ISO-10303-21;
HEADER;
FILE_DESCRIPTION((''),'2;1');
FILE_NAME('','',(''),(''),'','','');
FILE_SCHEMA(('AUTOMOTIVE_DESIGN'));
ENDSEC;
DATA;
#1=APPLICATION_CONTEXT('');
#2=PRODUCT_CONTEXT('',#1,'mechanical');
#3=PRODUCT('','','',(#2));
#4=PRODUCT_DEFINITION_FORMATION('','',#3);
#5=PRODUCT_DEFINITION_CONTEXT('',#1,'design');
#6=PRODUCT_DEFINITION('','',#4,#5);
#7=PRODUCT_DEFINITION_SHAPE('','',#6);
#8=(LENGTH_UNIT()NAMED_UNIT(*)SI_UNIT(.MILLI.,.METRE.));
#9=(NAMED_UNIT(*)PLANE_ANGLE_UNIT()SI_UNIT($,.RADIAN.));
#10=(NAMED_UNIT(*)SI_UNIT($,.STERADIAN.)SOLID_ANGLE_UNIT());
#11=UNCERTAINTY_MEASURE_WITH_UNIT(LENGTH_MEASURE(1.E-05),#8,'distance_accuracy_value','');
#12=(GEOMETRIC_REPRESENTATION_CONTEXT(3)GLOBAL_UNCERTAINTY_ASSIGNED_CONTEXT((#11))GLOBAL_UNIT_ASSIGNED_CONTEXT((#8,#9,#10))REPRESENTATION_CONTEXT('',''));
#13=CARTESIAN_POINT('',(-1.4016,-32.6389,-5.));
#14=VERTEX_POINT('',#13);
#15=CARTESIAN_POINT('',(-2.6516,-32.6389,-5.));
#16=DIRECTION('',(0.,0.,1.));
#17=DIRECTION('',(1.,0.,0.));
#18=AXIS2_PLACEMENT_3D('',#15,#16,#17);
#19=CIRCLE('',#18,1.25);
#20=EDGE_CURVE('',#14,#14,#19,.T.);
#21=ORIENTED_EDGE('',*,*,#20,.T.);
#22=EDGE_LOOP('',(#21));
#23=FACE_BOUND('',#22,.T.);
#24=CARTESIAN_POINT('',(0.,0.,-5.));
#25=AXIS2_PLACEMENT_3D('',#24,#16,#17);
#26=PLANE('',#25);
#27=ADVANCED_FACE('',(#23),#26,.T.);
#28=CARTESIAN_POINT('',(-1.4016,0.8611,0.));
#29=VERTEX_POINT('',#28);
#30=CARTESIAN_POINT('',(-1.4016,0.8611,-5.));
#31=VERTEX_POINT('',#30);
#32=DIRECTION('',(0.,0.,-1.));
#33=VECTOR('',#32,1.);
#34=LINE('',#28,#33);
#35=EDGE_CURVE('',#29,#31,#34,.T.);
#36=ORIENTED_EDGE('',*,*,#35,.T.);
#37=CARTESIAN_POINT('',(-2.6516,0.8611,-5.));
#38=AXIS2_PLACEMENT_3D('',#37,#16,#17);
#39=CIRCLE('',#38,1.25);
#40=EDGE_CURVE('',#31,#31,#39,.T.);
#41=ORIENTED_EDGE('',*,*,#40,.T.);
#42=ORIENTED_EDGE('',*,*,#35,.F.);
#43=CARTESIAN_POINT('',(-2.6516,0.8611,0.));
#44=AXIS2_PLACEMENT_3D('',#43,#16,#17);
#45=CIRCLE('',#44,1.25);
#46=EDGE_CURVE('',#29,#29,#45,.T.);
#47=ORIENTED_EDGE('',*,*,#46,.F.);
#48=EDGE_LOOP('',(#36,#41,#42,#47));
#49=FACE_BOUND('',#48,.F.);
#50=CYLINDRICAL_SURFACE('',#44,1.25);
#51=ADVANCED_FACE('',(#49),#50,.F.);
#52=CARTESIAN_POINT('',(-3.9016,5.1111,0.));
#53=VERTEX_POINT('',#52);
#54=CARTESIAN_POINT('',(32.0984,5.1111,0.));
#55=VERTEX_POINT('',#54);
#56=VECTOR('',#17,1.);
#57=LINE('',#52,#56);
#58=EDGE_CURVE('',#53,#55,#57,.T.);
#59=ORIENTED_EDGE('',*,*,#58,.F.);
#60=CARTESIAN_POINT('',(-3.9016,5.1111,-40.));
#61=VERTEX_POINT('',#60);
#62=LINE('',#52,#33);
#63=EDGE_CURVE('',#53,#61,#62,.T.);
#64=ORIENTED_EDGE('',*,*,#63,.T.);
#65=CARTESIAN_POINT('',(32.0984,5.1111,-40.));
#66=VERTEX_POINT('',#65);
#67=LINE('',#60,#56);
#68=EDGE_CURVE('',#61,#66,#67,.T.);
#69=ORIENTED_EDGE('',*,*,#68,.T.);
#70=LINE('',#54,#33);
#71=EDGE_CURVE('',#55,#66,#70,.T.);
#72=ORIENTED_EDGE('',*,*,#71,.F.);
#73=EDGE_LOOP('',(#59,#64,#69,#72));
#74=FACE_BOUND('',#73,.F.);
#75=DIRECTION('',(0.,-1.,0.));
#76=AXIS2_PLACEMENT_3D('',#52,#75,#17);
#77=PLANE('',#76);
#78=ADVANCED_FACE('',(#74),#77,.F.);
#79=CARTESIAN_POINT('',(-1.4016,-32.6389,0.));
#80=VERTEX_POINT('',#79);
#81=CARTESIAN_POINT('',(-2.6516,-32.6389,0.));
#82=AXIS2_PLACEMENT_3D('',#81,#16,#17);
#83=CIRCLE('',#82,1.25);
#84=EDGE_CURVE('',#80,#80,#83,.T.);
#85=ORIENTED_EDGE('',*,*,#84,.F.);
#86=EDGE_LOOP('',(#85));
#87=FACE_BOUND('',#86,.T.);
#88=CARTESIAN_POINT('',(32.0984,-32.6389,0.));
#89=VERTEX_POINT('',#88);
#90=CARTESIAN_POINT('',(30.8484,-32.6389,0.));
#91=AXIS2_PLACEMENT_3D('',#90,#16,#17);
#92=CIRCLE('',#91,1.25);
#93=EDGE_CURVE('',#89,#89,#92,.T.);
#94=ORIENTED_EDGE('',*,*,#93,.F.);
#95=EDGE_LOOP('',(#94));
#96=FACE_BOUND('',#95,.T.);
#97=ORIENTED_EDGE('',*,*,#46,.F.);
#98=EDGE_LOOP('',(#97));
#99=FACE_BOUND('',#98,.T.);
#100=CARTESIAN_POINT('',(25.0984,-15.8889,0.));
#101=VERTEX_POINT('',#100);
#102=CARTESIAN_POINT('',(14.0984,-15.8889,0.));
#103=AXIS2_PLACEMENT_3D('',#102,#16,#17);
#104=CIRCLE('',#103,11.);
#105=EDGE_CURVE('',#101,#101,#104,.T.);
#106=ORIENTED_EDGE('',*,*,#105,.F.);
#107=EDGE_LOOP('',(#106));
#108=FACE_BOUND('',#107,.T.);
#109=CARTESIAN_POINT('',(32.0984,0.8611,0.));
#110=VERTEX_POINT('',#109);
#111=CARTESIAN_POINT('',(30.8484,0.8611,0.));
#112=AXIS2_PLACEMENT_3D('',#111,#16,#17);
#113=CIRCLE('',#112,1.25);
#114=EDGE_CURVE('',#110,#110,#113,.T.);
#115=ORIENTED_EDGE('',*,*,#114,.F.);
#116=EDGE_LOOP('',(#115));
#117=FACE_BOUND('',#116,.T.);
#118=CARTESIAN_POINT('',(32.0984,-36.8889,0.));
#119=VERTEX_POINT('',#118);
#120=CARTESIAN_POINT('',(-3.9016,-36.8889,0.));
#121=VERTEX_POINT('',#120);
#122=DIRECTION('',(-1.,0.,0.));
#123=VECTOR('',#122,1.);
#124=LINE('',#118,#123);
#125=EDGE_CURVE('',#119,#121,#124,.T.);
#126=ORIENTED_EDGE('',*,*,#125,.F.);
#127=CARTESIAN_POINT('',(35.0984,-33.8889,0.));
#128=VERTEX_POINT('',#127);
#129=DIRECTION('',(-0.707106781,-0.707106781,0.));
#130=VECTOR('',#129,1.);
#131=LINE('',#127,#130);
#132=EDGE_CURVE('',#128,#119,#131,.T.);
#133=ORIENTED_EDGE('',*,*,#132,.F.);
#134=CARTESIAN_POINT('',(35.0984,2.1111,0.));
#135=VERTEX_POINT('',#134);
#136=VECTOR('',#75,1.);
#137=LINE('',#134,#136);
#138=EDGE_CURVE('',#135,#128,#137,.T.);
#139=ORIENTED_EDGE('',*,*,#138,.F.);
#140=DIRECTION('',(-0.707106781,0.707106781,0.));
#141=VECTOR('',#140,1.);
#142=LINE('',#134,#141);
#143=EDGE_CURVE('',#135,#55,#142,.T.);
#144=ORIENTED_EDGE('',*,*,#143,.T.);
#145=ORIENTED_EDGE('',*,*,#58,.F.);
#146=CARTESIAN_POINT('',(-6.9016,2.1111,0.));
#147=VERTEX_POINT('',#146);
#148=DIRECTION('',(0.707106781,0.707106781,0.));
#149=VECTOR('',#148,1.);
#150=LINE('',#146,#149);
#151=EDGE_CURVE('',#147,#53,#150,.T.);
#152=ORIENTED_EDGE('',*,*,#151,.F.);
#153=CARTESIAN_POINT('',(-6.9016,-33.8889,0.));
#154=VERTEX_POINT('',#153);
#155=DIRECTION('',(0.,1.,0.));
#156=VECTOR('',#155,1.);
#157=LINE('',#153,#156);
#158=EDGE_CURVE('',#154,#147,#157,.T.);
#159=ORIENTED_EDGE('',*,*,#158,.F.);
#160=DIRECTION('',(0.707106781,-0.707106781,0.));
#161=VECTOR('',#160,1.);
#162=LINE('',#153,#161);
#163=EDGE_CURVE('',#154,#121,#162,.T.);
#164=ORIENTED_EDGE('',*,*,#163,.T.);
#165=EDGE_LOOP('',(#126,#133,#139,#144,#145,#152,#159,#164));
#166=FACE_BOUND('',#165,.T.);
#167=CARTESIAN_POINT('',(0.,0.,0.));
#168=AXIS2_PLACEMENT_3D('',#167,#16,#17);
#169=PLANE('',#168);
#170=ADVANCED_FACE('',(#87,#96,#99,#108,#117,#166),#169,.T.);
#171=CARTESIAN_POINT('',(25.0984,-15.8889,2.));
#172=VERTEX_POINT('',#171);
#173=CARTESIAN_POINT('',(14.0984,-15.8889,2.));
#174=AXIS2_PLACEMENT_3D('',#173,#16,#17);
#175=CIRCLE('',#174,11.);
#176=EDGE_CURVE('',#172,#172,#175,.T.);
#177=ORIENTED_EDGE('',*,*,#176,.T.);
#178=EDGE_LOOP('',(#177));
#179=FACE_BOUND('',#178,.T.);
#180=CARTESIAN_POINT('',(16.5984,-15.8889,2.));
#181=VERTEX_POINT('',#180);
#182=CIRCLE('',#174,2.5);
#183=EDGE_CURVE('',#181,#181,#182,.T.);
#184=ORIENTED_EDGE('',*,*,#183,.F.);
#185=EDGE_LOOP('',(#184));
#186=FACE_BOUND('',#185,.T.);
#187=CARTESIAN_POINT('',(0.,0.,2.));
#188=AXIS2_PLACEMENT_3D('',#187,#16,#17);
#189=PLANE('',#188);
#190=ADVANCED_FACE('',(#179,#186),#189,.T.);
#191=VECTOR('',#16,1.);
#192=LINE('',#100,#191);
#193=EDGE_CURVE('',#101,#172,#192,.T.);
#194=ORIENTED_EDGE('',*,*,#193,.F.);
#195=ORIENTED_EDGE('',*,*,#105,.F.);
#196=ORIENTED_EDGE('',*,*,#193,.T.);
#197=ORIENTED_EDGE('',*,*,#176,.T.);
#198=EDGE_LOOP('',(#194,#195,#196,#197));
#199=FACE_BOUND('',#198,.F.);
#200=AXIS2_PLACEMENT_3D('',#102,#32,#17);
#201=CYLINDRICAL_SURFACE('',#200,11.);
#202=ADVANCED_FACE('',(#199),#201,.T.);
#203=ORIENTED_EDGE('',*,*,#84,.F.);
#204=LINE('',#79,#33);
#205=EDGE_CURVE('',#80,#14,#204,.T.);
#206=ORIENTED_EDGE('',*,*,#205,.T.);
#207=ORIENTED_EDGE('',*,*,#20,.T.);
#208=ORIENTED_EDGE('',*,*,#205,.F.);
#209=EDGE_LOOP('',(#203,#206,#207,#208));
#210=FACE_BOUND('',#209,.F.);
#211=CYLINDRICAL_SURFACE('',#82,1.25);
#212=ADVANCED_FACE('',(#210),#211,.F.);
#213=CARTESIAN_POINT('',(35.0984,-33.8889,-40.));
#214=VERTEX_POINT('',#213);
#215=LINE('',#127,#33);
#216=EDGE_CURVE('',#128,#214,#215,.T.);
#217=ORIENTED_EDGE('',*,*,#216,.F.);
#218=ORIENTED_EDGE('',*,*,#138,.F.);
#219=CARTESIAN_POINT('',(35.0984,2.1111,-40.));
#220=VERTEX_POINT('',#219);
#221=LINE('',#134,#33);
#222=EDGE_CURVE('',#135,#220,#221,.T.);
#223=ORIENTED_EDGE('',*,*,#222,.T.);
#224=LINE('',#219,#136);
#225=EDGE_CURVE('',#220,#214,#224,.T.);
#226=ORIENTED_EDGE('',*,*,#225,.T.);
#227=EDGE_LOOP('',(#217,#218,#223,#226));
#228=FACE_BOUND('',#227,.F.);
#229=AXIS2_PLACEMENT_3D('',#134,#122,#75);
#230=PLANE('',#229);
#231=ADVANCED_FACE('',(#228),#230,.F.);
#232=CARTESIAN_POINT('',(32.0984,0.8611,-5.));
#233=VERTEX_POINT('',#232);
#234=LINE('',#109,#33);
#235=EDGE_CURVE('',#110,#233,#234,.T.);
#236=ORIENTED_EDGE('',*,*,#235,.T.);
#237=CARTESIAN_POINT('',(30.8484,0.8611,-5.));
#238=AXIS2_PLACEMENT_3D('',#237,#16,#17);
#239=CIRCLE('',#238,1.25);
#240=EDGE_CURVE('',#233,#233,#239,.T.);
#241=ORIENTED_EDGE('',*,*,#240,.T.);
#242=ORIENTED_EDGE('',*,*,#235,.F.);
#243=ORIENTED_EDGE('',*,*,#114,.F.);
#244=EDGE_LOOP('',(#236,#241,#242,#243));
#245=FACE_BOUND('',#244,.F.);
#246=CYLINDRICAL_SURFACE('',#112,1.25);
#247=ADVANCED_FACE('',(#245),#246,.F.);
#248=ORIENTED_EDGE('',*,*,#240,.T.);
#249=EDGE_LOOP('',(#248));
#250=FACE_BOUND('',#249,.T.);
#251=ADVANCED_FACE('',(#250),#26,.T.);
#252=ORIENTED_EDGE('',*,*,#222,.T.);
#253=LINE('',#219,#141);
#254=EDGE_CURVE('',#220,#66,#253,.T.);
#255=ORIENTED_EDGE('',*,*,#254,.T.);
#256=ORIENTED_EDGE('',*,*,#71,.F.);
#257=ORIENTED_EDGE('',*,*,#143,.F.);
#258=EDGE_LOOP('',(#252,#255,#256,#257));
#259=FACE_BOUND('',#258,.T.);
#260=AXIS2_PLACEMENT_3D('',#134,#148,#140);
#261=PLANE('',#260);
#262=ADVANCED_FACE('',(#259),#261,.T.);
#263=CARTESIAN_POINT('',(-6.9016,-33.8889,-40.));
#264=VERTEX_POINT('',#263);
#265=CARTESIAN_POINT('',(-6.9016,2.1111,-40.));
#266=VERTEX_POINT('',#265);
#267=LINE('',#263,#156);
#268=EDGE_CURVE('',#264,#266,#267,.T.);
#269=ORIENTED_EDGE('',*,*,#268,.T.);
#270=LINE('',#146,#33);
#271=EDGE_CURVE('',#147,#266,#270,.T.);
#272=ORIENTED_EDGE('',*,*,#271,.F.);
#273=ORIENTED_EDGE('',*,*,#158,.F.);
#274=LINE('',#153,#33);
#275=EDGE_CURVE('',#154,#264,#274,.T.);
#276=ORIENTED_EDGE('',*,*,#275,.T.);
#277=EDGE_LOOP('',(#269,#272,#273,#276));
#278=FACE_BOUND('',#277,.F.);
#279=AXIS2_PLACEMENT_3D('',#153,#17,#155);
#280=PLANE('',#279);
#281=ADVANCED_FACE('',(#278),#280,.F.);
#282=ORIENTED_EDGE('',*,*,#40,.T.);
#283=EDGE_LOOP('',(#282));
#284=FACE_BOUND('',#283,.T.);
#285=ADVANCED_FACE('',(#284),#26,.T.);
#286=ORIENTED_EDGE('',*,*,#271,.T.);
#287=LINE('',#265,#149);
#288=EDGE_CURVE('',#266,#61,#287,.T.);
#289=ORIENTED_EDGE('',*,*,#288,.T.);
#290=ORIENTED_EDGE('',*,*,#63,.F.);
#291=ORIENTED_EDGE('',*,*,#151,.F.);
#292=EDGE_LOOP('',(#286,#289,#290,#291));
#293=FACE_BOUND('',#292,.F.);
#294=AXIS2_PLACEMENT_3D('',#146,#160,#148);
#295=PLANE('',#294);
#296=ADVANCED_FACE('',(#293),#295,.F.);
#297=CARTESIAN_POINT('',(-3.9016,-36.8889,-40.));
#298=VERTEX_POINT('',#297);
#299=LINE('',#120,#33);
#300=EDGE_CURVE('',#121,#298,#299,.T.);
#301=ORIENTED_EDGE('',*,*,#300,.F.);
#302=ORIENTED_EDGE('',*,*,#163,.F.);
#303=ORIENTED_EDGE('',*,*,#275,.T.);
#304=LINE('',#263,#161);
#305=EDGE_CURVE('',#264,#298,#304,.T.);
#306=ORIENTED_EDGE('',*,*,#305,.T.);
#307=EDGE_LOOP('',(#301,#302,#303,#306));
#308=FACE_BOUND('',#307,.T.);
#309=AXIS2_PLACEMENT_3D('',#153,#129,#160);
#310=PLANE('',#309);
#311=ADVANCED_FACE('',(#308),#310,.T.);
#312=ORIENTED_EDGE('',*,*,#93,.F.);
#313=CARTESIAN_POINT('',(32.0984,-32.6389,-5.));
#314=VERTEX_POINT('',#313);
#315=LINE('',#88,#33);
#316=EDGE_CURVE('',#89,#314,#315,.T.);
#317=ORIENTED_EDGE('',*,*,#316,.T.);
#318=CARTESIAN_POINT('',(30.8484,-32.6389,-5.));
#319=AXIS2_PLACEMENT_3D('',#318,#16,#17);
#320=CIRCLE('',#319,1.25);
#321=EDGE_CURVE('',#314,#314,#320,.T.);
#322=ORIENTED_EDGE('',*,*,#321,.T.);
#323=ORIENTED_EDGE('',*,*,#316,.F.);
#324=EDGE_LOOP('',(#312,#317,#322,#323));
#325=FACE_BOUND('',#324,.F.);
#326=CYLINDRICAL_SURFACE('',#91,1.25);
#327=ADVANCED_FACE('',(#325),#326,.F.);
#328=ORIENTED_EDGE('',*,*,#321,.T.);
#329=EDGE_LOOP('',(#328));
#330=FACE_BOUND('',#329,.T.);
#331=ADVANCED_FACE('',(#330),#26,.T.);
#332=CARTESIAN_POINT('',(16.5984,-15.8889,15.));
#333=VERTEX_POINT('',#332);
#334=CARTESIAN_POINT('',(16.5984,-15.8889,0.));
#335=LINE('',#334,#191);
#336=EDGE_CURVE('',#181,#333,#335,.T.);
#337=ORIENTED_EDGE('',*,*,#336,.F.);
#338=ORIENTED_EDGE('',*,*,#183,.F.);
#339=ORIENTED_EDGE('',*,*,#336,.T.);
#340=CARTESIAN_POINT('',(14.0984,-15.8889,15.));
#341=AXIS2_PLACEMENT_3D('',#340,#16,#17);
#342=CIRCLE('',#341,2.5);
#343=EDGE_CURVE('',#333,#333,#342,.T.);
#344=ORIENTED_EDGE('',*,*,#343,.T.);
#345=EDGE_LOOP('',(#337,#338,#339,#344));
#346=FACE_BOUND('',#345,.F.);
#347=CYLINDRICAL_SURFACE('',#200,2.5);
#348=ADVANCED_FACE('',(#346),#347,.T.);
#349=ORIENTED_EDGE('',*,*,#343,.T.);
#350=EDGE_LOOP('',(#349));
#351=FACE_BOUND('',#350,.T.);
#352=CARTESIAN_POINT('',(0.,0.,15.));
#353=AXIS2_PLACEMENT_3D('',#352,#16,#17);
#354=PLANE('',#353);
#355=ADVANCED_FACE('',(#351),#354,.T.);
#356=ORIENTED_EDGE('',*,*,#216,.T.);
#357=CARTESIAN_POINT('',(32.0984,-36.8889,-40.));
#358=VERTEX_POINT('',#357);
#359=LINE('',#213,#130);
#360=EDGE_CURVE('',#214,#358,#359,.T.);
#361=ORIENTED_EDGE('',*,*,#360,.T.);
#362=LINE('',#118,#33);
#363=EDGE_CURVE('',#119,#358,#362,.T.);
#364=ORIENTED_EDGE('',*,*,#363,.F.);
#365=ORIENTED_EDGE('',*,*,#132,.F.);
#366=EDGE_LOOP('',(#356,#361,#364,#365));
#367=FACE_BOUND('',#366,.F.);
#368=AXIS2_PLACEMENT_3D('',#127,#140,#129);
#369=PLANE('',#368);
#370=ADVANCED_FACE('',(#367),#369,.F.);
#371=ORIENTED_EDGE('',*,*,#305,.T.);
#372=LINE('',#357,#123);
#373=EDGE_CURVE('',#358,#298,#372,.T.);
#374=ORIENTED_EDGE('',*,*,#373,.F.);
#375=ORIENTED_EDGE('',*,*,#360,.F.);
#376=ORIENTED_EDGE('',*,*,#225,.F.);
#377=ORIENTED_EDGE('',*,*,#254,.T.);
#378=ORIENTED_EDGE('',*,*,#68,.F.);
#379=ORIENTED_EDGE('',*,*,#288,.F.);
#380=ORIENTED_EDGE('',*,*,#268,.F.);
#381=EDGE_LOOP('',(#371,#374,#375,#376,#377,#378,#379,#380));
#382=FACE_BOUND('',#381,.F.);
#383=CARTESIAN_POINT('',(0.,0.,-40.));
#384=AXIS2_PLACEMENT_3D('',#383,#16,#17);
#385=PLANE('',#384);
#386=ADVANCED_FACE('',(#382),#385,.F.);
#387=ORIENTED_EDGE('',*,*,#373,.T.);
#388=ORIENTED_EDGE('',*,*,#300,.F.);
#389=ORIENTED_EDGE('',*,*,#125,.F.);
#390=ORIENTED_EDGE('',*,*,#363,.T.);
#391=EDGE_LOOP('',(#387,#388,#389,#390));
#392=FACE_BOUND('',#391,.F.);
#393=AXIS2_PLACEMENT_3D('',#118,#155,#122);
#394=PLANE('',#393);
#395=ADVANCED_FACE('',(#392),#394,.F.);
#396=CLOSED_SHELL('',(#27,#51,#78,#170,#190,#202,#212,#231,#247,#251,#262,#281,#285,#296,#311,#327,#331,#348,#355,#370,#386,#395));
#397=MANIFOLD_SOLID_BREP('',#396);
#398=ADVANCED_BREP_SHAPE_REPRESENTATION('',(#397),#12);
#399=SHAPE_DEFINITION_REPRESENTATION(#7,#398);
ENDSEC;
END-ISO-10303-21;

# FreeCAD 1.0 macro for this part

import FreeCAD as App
import Part
import Sketcher

V = App.Vector


def add_polygon(sketch, points):
    """Adds a closed chain of lines whose ends are joined by coincident constraints."""
    first, n = sketch.GeometryCount, len(points)
    for a, b in zip(points, points[1:] + points[:1]):
        sketch.addGeometry(Part.LineSegment(App.Vector(*a, 0), App.Vector(*b, 0)), False)
    for i in range(n):
        sketch.addConstraint(Sketcher.Constraint("Coincident", first + i, 2, first + (i + 1) % n, 1))

doc = App.newDocument("Part")
body = doc.addObject("PartDesign::Body", "Body")

# Sketch on XY plane
sketch1 = body.newObject("Sketcher::SketchObject", "Sketch")
sketch1.AttachmentSupport = (doc.getObject("XY_Plane"), [""])
sketch1.MapMode = "FlatFace"
sketch1.addGeometry(Part.Circle(V(14.0984, -15.8889, 0), V(0, 0, 1), 2.5), False)
sketch1.addConstraint([
    Sketcher.Constraint("Diameter", 0, 5.0),
    Sketcher.Constraint("DistanceY", 0, 3, -1, 1, 15.889),
    Sketcher.Constraint("DistanceX", -1, 1, 0, 3, 14.0984),
])
pad1 = body.newObject("PartDesign::Pad", "Pad")
pad1.Profile = sketch1
pad1.Length = 15

# Sketch on XY plane
sketch2 = body.newObject("Sketcher::SketchObject", "Sketch001")
sketch2.AttachmentSupport = (doc.getObject("XY_Plane"), [""])
sketch2.MapMode = "FlatFace"
sketch2.addGeometry([
    Part.Circle(V(14.0984, -15.8889, 0), V(0, 0, 1), 11),
    Part.Circle(V(14.0984, -15.8889, 0), V(0, 0, 1), 2.5),
], False)
sketch2.addConstraint([
    Sketcher.Constraint("Coincident", 1, 3, 0, 3),
    Sketcher.Constraint("Diameter", 0, 22.0),
    Sketcher.Constraint("Diameter", 1, 5.0),
    Sketcher.Constraint("DistanceY", 0, 3, -1, 1, 15.889),
    Sketcher.Constraint("DistanceX", -1, 1, 0, 3, 14.0984),
])
pad2 = body.newObject("PartDesign::Pad", "Pad001")
pad2.Profile = sketch2
pad2.Length = 2

# Sketch on XY plane
sketch3 = body.newObject("Sketcher::SketchObject", "Sketch002")
sketch3.AttachmentSupport = (doc.getObject("XY_Plane"), [""])
sketch3.MapMode = "FlatFace"
add_polygon(sketch3, [(32.0984, 5.1111), (-3.9016, 5.1111), (-6.9016, 2.1111), (-6.9016, -33.8889), (-3.9016, -36.8889), (32.0984, -36.8889), (35.0984, -33.8889), (35.0984, 2.1111)])  # lines 0-7
sketch3.addConstraint([
    Sketcher.Constraint("Horizontal", 0),
    Sketcher.Constraint("Vertical", 2),
    Sketcher.Constraint("Horizontal", 4),
    Sketcher.Constraint("Vertical", 6),
    Sketcher.Constraint("Perpendicular", 1, 3),
    Sketcher.Constraint("Perpendicular", 3, 5),
    Sketcher.Constraint("Perpendicular", 5, 7),
    Sketcher.Constraint("Horizontal", 2, 2, 5, 2),
    Sketcher.Constraint("Horizontal", 1, 2, 6, 2),
    Sketcher.Constraint("Vertical", 0, 2, 3, 2),
    Sketcher.Constraint("Vertical", 4, 2, 7, 2),
    Sketcher.Constraint("Equal", 4, 2),
    Sketcher.Constraint("DistanceX", 0, 2, 0, 1, 36.0),
    Sketcher.Constraint("DistanceX", 1, 2, 0, 2, 3.0),
    Sketcher.Constraint("DistanceY", -1, 1, 0, 2, 5.111),
    Sketcher.Constraint("DistanceX", 0, 2, -1, 1, 3.9016),
])
pad3 = body.newObject("PartDesign::Pad", "Pad002")
pad3.Profile = sketch3
pad3.Length = 40
pad3.Reversed = True

# Sketch on XY plane
sketch4 = body.newObject("Sketcher::SketchObject", "Sketch003")
sketch4.AttachmentSupport = (doc.getObject("XY_Plane"), [""])
sketch4.MapMode = "FlatFace"
sketch4.addGeometry(Part.Circle(V(30.8484, 0.8611, 0), V(0, 0, 1), 1.25), False)
sketch4.addConstraint([
    Sketcher.Constraint("Diameter", 0, 2.5),
    Sketcher.Constraint("DistanceY", -1, 1, 0, 3, 0.861),
    Sketcher.Constraint("DistanceX", -1, 1, 0, 3, 30.8484),
])
pocket1 = body.newObject("PartDesign::Pocket", "Pocket")
pocket1.Profile = sketch4
pocket1.Length = 5

# Sketch on XY plane
sketch5 = body.newObject("Sketcher::SketchObject", "Sketch004")
sketch5.AttachmentSupport = (doc.getObject("XY_Plane"), [""])
sketch5.MapMode = "FlatFace"
sketch5.addGeometry(Part.Circle(V(30.8484, -32.6389, 0), V(0, 0, 1), 1.25), False)
sketch5.addConstraint([
    Sketcher.Constraint("Diameter", 0, 2.5),
    Sketcher.Constraint("DistanceY", 0, 3, -1, 1, 32.639),
    Sketcher.Constraint("DistanceX", -1, 1, 0, 3, 30.8484),
])
pocket2 = body.newObject("PartDesign::Pocket", "Pocket001")
pocket2.Profile = sketch5
pocket2.Length = 5

# Sketch on XY plane
sketch6 = body.newObject("Sketcher::SketchObject", "Sketch005")
sketch6.AttachmentSupport = (doc.getObject("XY_Plane"), [""])
sketch6.MapMode = "FlatFace"
sketch6.addGeometry(Part.Circle(V(-2.6516, -32.6389, 0), V(0, 0, 1), 1.25), False)
sketch6.addConstraint([
    Sketcher.Constraint("Diameter", 0, 2.5),
    Sketcher.Constraint("DistanceY", 0, 3, -1, 1, 32.639),
    Sketcher.Constraint("DistanceX", 0, 3, -1, 1, 2.6516),
])
pocket3 = body.newObject("PartDesign::Pocket", "Pocket002")
pocket3.Profile = sketch6
pocket3.Length = 5

# Sketch on XY plane
sketch7 = body.newObject("Sketcher::SketchObject", "Sketch006")
sketch7.AttachmentSupport = (doc.getObject("XY_Plane"), [""])
sketch7.MapMode = "FlatFace"
sketch7.addGeometry(Part.Circle(V(-2.6516, 0.8611, 0), V(0, 0, 1), 1.25), False)
sketch7.addConstraint([
    Sketcher.Constraint("Diameter", 0, 2.5),
    Sketcher.Constraint("DistanceY", -1, 1, 0, 3, 0.861),
    Sketcher.Constraint("DistanceX", 0, 3, -1, 1, 2.6516),
])
pocket4 = body.newObject("PartDesign::Pocket", "Pocket003")
pocket4.Profile = sketch7
pocket4.Length = 5

doc.recompute()
